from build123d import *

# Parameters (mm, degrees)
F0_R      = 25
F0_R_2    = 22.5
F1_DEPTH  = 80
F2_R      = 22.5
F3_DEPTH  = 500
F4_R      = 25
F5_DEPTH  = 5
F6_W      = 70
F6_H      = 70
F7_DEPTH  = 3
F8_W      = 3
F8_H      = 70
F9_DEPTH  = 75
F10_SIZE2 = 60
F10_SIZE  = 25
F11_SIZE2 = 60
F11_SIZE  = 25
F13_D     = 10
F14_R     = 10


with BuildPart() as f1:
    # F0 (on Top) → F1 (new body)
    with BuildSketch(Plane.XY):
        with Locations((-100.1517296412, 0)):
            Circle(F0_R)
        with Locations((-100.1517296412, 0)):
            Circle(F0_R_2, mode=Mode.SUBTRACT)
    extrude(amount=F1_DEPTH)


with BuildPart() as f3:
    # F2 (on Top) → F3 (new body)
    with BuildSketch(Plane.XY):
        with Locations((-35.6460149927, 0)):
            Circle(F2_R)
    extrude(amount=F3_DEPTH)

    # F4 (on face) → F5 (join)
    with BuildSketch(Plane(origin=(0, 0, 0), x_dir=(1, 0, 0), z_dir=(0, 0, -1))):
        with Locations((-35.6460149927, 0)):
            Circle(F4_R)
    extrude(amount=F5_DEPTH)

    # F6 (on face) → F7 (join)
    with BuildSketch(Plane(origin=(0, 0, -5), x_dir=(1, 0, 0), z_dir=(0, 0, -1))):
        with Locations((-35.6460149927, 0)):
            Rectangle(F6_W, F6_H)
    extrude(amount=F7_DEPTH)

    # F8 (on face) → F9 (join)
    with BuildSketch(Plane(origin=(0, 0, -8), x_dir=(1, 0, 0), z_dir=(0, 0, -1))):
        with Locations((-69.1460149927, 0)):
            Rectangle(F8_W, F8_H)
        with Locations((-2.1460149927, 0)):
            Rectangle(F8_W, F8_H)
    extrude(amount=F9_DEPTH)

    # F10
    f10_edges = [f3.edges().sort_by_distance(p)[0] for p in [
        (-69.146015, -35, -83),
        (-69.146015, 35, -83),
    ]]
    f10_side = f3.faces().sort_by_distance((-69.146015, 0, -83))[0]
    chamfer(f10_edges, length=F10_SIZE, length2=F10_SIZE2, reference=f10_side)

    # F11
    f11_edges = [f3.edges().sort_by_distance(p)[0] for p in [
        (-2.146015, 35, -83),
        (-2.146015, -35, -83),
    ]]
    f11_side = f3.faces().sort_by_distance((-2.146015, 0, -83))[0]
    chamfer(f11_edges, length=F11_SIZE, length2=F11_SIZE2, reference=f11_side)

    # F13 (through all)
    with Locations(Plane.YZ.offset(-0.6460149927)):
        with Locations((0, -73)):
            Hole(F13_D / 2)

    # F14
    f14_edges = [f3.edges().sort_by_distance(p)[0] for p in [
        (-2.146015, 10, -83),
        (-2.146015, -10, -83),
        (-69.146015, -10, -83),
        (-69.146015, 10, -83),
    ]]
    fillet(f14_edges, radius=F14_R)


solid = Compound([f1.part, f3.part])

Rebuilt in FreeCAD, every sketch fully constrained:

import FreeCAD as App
import Part
import Sketcher
Q = App.Units.Quantity


def edges_at(feature, points):
    """Names of the edges that pass closest to the given points."""
    edges = feature.Shape.Edges
    near = lambda p: min(range(len(edges)), key=lambda i: edges[i].distToShape(Part.Vertex(*p))[0])
    return sorted({f"Edge{near(p) + 1}" for p in points})

doc = App.newDocument("Part")
params = doc.addObject("Spreadsheet::Sheet", "Params")
for row, (alias, value) in enumerate([
    ("sketch1_diameter", "50 mm"),
    ("sketch1_diameter2", "45 mm"),
    ("pad1_length", "80 mm"),
    ("sketch2_diameter", "45 mm"),
    ("pad2_length", "500 mm"),
    ("sketch3_diameter", "50 mm"),
    ("pad3_length", "5 mm"),
    ("sketch4_width", "70 mm"),
    ("pad4_length", "3 mm"),
    ("sketch5_width", "3 mm"),
    ("sketch5_height", "70 mm"),
    ("pad5_length", "75 mm"),
    ("chamfer_size", "25 mm"),
    ("chamfer_size2", "60 mm"),
    ("chamfer2_size", "25 mm"),
    ("chamfer2_size2", "60 mm"),
    ("sketch6_diameter", "10 mm"),
    ("hole_diameter", "10 mm"),
    ("fillet_radius", "10 mm"),
], start=1):
    params.set(f"A{row}", alias)
    params.set(f"B{row}", "=" + value)
    params.setAlias(f"B{row}", alias)

body = doc.addObject("PartDesign::Body", "Body")

# Sketch on XY plane
sketch1 = doc.addObject("Sketcher::SketchObject", "Sketch")
body.addObject(sketch1)
sketch1.AttachmentSupport = (doc.XY_Plane, [""])
sketch1.MapMode = "FlatFace"
sketch1.addGeometry(Part.Circle(App.Vector(-100, 0, 0), App.Vector(0, 0, 1), 25), False)
sketch1.addGeometry(Part.Circle(App.Vector(-100, 0, 0), App.Vector(0, 0, 1), 22), False)
sketch1.addConstraint(Sketcher.Constraint("Coincident", 1, 3, 0, 3))
sketch1.addConstraint(Sketcher.Constraint("PointOnObject", 0, 3, -1))
sketch1.addConstraint(Sketcher.Constraint("Diameter", 0, Q("50 mm")))
sketch1.addConstraint(Sketcher.Constraint("Diameter", 1, Q("45 mm")))
sketch1.addConstraint(Sketcher.Constraint("DistanceX", 0, 3, -1, 1, Q("100.15173 mm")))
sketch1.setExpression("Constraints[2]", "Params.sketch1_diameter")
sketch1.setExpression("Constraints[3]", "Params.sketch1_diameter2")
pad1 = doc.addObject("PartDesign::Pad", "Pad")
body.addObject(pad1)
pad1.Profile = sketch1
pad1.setExpression("Length", "Params.pad1_length")
body2 = doc.addObject("PartDesign::Body", "Body001")

# Sketch on XY plane
sketch2 = doc.addObject("Sketcher::SketchObject", "Sketch001")
body2.addObject(sketch2)
sketch2.AttachmentSupport = (doc.getObject("XY_Plane001"), [""])
sketch2.MapMode = "FlatFace"
sketch2.addGeometry(Part.Circle(App.Vector(-36, 0, 0), App.Vector(0, 0, 1), 22), False)
sketch2.addConstraint(Sketcher.Constraint("PointOnObject", 0, 3, -1))
sketch2.addConstraint(Sketcher.Constraint("Diameter", 0, Q("45 mm")))
sketch2.addConstraint(Sketcher.Constraint("DistanceX", 0, 3, -1, 1, Q("35.646015 mm")))
sketch2.setExpression("Constraints[1]", "Params.sketch2_diameter")
pad2 = doc.addObject("PartDesign::Pad", "Pad001")
body2.addObject(pad2)
pad2.Profile = sketch2
pad2.setExpression("Length", "Params.pad2_length")

# Sketch on XY plane
sketch3 = doc.addObject("Sketcher::SketchObject", "Sketch002")
body2.addObject(sketch3)
sketch3.AttachmentSupport = (doc.getObject("XY_Plane001"), [""])
sketch3.MapMode = "FlatFace"
sketch3.addGeometry(Part.Circle(App.Vector(-36, 0, 0), App.Vector(0, 0, 1), 25), False)
sketch3.addConstraint(Sketcher.Constraint("PointOnObject", 0, 3, -1))
sketch3.addConstraint(Sketcher.Constraint("Diameter", 0, Q("50 mm")))
sketch3.addConstraint(Sketcher.Constraint("DistanceX", 0, 3, -1, 1, Q("35.646015 mm")))
sketch3.setExpression("Constraints[1]", "Params.sketch3_diameter")
pad3 = doc.addObject("PartDesign::Pad", "Pad002")
body2.addObject(pad3)
pad3.Profile = sketch3
pad3.setExpression("Length", "Params.pad3_length")
pad3.Reversed = True

# Sketch on XY plane
sketch4 = doc.addObject("Sketcher::SketchObject", "Sketch003")
body2.addObject(sketch4)
sketch4.AttachmentSupport = (doc.getObject("XY_Plane001"), [""])
sketch4.MapMode = "FlatFace"
sketch4.AttachmentOffset = App.Placement(App.Vector(0, 0, -5), App.Rotation())
sketch4.addGeometry(Part.LineSegment(App.Vector(-71, -35, 0), App.Vector(-71, 35, 0)), False)
sketch4.addGeometry(Part.LineSegment(App.Vector(-71, 35, 0), App.Vector(-1, 35, 0)), False)
sketch4.addGeometry(Part.LineSegment(App.Vector(-1, 35, 0), App.Vector(-1, -35, 0)), False)
sketch4.addGeometry(Part.LineSegment(App.Vector(-1, -35, 0), App.Vector(-71, -35, 0)), False)
sketch4.addConstraint(Sketcher.Constraint("Coincident", 0, 2, 1, 1))
sketch4.addConstraint(Sketcher.Constraint("Coincident", 1, 2, 2, 1))
sketch4.addConstraint(Sketcher.Constraint("Coincident", 2, 2, 3, 1))
sketch4.addConstraint(Sketcher.Constraint("Coincident", 3, 2, 0, 1))
sketch4.addConstraint(Sketcher.Constraint("Vertical", 0))
sketch4.addConstraint(Sketcher.Constraint("Horizontal", 1))
sketch4.addConstraint(Sketcher.Constraint("Vertical", 2))
sketch4.addConstraint(Sketcher.Constraint("Horizontal", 3))
sketch4.addConstraint(Sketcher.Constraint("Equal", 3, 0))
sketch4.addConstraint(Sketcher.Constraint("DistanceX", 1, 1, 1, 2, Q("70 mm")))
sketch4.addConstraint(Sketcher.Constraint("DistanceY", -1, 1, 0, 2, Q("35 mm")))
sketch4.addConstraint(Sketcher.Constraint("DistanceX", 0, 2, -1, 1, Q("70.646015 mm")))
sketch4.setExpression("Constraints[9]", "Params.sketch4_width")
pad4 = doc.addObject("PartDesign::Pad", "Pad003")
body2.addObject(pad4)
pad4.Profile = sketch4
pad4.setExpression("Length", "Params.pad4_length")
pad4.Reversed = True

# Sketch on XY plane
sketch5 = doc.addObject("Sketcher::SketchObject", "Sketch004")
body2.addObject(sketch5)
sketch5.AttachmentSupport = (doc.getObject("XY_Plane001"), [""])
sketch5.MapMode = "FlatFace"
sketch5.AttachmentOffset = App.Placement(App.Vector(0, 0, -8), App.Rotation())
sketch5.addGeometry(Part.LineSegment(App.Vector(-70.6, -35, 0), App.Vector(-70.6, 35, 0)), False)
sketch5.addGeometry(Part.LineSegment(App.Vector(-70.6, 35, 0), App.Vector(-67.6, 35, 0)), False)
sketch5.addGeometry(Part.LineSegment(App.Vector(-67.6, 35, 0), App.Vector(-67.6, -35, 0)), False)
sketch5.addGeometry(Part.LineSegment(App.Vector(-67.6, -35, 0), App.Vector(-70.6, -35, 0)), False)
sketch5.addGeometry(Part.LineSegment(App.Vector(-3.6, -35, 0), App.Vector(-3.6, 35, 0)), False)
sketch5.addGeometry(Part.LineSegment(App.Vector(-3.6, 35, 0), App.Vector(-0.6, 35, 0)), False)
sketch5.addGeometry(Part.LineSegment(App.Vector(-0.6, 35, 0), App.Vector(-0.6, -35, 0)), False)
sketch5.addGeometry(Part.LineSegment(App.Vector(-0.6, -35, 0), App.Vector(-3.6, -35, 0)), False)
sketch5.addConstraint(Sketcher.Constraint("Coincident", 0, 2, 1, 1))
sketch5.addConstraint(Sketcher.Constraint("Coincident", 1, 2, 2, 1))
sketch5.addConstraint(Sketcher.Constraint("Coincident", 2, 2, 3, 1))
sketch5.addConstraint(Sketcher.Constraint("Coincident", 3, 2, 0, 1))
sketch5.addConstraint(Sketcher.Constraint("Coincident", 4, 2, 5, 1))
sketch5.addConstraint(Sketcher.Constraint("Coincident", 5, 2, 6, 1))
sketch5.addConstraint(Sketcher.Constraint("Coincident", 6, 2, 7, 1))
sketch5.addConstraint(Sketcher.Constraint("Coincident", 7, 2, 4, 1))
sketch5.addConstraint(Sketcher.Constraint("Vertical", 0))
sketch5.addConstraint(Sketcher.Constraint("Horizontal", 1))
sketch5.addConstraint(Sketcher.Constraint("Vertical", 2))
sketch5.addConstraint(Sketcher.Constraint("Horizontal", 3))
sketch5.addConstraint(Sketcher.Constraint("Vertical", 4))
sketch5.addConstraint(Sketcher.Constraint("Horizontal", 5))
sketch5.addConstraint(Sketcher.Constraint("Vertical", 6))
sketch5.addConstraint(Sketcher.Constraint("Horizontal", 7))
sketch5.addConstraint(Sketcher.Constraint("Horizontal", 1, 2, 4, 2))
sketch5.addConstraint(Sketcher.Constraint("Horizontal", 3, 2, 6, 2))
sketch5.addConstraint(Sketcher.Constraint("Equal", 3, 5))
sketch5.addConstraint(Sketcher.Constraint("DistanceX", 1, 1, 1, 2, Q("3 mm")))
sketch5.addConstraint(Sketcher.Constraint("DistanceY", 0, 1, 0, 2, Q("70 mm")))
sketch5.addConstraint(Sketcher.Constraint("DistanceY", -1, 1, 0, 2, Q("35 mm")))
sketch5.addConstraint(Sketcher.Constraint("DistanceX", 1, 2, 4, 2, Q("64 mm")))
sketch5.addConstraint(Sketcher.Constraint("DistanceX", 0, 2, -1, 1, Q("70.646015 mm")))
sketch5.setExpression("Constraints[19]", "Params.sketch5_width")
sketch5.setExpression("Constraints[20]", "Params.sketch5_height")
pad5 = doc.addObject("PartDesign::Pad", "Pad004")
body2.addObject(pad5)
pad5.Profile = sketch5
pad5.setExpression("Length", "Params.pad5_length")
pad5.Reversed = True
doc.recompute()

chamfer = doc.addObject("PartDesign::Chamfer", "Chamfer")
body2.addObject(chamfer)
chamfer.Base = (pad5, edges_at(pad5, [(-69.146, -35, -83), (-69.146, 35, -83)]))
chamfer.ChamferType = "Two distances"
chamfer.setExpression("Size", "Params.chamfer_size")
chamfer.setExpression("Size2", "Params.chamfer_size2")
doc.recompute()

chamfer2 = doc.addObject("PartDesign::Chamfer", "Chamfer001")
body2.addObject(chamfer2)
chamfer2.Base = (chamfer, edges_at(chamfer, [(-2.146, 35, -83), (-2.146, -35, -83)]))
chamfer2.ChamferType = "Two distances"
chamfer2.setExpression("Size", "Params.chamfer2_size")
chamfer2.setExpression("Size2", "Params.chamfer2_size2")
chamfer2.FlipDirection = True

# Sketch on YZ plane
sketch6 = doc.addObject("Sketcher::SketchObject", "Sketch005")
body2.addObject(sketch6)
sketch6.AttachmentSupport = (doc.getObject("YZ_Plane001"), [""])
sketch6.MapMode = "FlatFace"
sketch6.AttachmentOffset = App.Placement(App.Vector(0, 0, -0.646015), App.Rotation())
sketch6.addGeometry(Part.Circle(App.Vector(0, -73, 0), App.Vector(0, 0, 1), 5), False)
sketch6.addConstraint(Sketcher.Constraint("PointOnObject", 0, 3, -2))
sketch6.addConstraint(Sketcher.Constraint("Diameter", 0, Q("10 mm")))
sketch6.addConstraint(Sketcher.Constraint("DistanceY", 0, 3, -1, 1, Q("73 mm")))
sketch6.setExpression("Constraints[1]", "Params.sketch6_diameter")
doc.recompute()
hole = doc.addObject("PartDesign::Hole", "Hole")
body2.addObject(hole)
hole.Profile = sketch6
hole.ThreadType = "None"
hole.setExpression("Diameter", "Params.hole_diameter")
hole.DepthType = "ThroughAll"
doc.recompute()

fillet = doc.addObject("PartDesign::Fillet", "Fillet")
body2.addObject(fillet)
fillet.Base = (hole, edges_at(hole, [
    (-2.146, 10, -83),
    (-2.146, -10, -83),
    (-69.146, -10, -83),
    (-69.146, 10, -83),
]))
fillet.setExpression("Radius", "Params.fillet_radius")

doc.recompute()
